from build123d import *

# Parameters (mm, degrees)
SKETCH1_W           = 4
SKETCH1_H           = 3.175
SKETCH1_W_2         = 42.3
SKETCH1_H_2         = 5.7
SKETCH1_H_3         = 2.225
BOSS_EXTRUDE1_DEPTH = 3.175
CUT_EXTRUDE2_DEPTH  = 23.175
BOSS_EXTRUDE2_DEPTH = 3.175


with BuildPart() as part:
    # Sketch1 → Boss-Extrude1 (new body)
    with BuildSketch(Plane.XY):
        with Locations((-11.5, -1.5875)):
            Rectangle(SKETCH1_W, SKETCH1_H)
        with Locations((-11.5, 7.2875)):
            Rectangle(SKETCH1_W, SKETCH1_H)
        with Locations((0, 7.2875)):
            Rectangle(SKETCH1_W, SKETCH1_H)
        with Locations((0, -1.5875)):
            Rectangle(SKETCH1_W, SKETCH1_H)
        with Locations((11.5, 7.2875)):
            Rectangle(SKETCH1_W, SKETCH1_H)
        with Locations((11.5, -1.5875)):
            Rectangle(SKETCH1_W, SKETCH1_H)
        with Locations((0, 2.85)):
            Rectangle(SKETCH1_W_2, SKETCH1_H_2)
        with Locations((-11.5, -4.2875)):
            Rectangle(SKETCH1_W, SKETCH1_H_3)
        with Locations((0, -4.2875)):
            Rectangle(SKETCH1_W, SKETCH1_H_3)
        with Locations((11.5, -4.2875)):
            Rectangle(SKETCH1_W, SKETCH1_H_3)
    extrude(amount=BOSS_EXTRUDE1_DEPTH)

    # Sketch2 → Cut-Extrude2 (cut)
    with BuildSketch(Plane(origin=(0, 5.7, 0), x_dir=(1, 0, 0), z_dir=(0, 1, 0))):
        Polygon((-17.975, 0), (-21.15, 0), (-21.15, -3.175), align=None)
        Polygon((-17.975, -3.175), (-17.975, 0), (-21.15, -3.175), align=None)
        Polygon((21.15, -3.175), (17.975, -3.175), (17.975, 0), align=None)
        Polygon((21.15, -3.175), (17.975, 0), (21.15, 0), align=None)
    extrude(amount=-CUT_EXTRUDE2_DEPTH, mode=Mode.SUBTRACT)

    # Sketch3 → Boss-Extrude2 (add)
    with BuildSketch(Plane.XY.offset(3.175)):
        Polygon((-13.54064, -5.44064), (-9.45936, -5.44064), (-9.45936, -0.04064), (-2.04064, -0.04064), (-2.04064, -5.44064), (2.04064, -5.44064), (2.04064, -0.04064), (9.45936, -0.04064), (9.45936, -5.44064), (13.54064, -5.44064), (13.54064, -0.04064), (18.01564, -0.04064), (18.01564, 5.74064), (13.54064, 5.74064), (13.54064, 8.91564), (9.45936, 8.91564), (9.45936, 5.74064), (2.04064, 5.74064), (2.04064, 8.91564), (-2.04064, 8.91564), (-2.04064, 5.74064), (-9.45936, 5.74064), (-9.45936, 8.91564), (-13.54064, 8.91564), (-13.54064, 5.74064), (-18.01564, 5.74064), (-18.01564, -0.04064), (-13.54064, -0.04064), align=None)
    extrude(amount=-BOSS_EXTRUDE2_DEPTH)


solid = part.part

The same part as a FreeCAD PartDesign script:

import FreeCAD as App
import Part
import Sketcher

V = App.Vector

doc = App.newDocument("Part")
body = doc.addObject("PartDesign::Body", "Body")

# Sketch on XY plane
sketch1 = doc.addObject("Sketcher::SketchObject", "Sketch")
body.addObject(sketch1)
sketch1.AttachmentSupport = (doc.XY_Plane, [""])
sketch1.MapMode = "FlatFace"
sketch1.addGeometry([
    Part.LineSegment(V(-13.5, 0, 0), V(-13.5, -5.4, 0)),  # 0
    Part.LineSegment(V(-13.5, -5.4, 0), V(-9.5, -5.4, 0)),  # 1
    Part.LineSegment(V(-9.5, -5.4, 0), V(-9.5, 0, 0)),  # 2
    Part.LineSegment(V(-9.5, 0, 0), V(-2, 0, 0)),  # 3
    Part.LineSegment(V(-2, 0, 0), V(-2, -5.4, 0)),  # 4
    Part.LineSegment(V(-2, -5.4, 0), V(2, -5.4, 0)),  # 5
    Part.LineSegment(V(2, -5.4, 0), V(2, 0, 0)),  # 6
    Part.LineSegment(V(2, 0, 0), V(9.5, 0, 0)),  # 7
    Part.LineSegment(V(9.5, 0, 0), V(9.5, -5.4, 0)),  # 8
    Part.LineSegment(V(9.5, -5.4, 0), V(13.5, -5.4, 0)),  # 9
    Part.LineSegment(V(13.5, -5.4, 0), V(13.5, 0, 0)),  # 10
    Part.LineSegment(V(13.5, 0, 0), V(21.1, 0, 0)),  # 11
    Part.LineSegment(V(21.1, 0, 0), V(21.1, 5.7, 0)),  # 12
    Part.LineSegment(V(21.1, 5.7, 0), V(13.5, 5.7, 0)),  # 13
    Part.LineSegment(V(13.5, 5.7, 0), V(13.5, 8.9, 0)),  # 14
    Part.LineSegment(V(13.5, 8.9, 0), V(9.5, 8.9, 0)),  # 15
    Part.LineSegment(V(9.5, 8.9, 0), V(9.5, 5.7, 0)),  # 16
    Part.LineSegment(V(9.5, 5.7, 0), V(2, 5.7, 0)),  # 17
    Part.LineSegment(V(2, 5.7, 0), V(2, 8.9, 0)),  # 18
    Part.LineSegment(V(2, 8.9, 0), V(-2, 8.9, 0)),  # 19
    Part.LineSegment(V(-2, 8.9, 0), V(-2, 5.7, 0)),  # 20
    Part.LineSegment(V(-2, 5.7, 0), V(-9.5, 5.7, 0)),  # 21
    Part.LineSegment(V(-9.5, 5.7, 0), V(-9.5, 8.9, 0)),  # 22
    Part.LineSegment(V(-9.5, 8.9, 0), V(-13.5, 8.9, 0)),  # 23
    Part.LineSegment(V(-13.5, 8.9, 0), V(-13.5, 5.7, 0)),  # 24
    Part.LineSegment(V(-13.5, 5.7, 0), V(-21.1, 5.7, 0)),  # 25
    Part.LineSegment(V(-21.1, 5.7, 0), V(-21.1, 0, 0)),  # 26
    Part.LineSegment(V(-21.1, 0, 0), V(-13.5, 0, 0)),  # 27
], False)
sketch1.addConstraint([
    Sketcher.Constraint("Coincident", 0, 2, 1, 1),
    Sketcher.Constraint("Coincident", 1, 2, 2, 1),
    Sketcher.Constraint("Coincident", 2, 2, 3, 1),
    Sketcher.Constraint("Coincident", 3, 2, 4, 1),
    Sketcher.Constraint("Coincident", 4, 2, 5, 1),
    Sketcher.Constraint("Coincident", 5, 2, 6, 1),
    Sketcher.Constraint("Coincident", 6, 2, 7, 1),
    Sketcher.Constraint("Coincident", 7, 2, 8, 1),
    Sketcher.Constraint("Coincident", 8, 2, 9, 1),
    Sketcher.Constraint("Coincident", 9, 2, 10, 1),
    Sketcher.Constraint("Coincident", 10, 2, 11, 1),
    Sketcher.Constraint("Coincident", 11, 2, 12, 1),
    Sketcher.Constraint("Coincident", 12, 2, 13, 1),
    Sketcher.Constraint("Coincident", 13, 2, 14, 1),
    Sketcher.Constraint("Coincident", 14, 2, 15, 1),
    Sketcher.Constraint("Coincident", 15, 2, 16, 1),
    Sketcher.Constraint("Coincident", 16, 2, 17, 1),
    Sketcher.Constraint("Coincident", 17, 2, 18, 1),
    Sketcher.Constraint("Coincident", 18, 2, 19, 1),
    Sketcher.Constraint("Coincident", 19, 2, 20, 1),
    Sketcher.Constraint("Coincident", 20, 2, 21, 1),
    Sketcher.Constraint("Coincident", 21, 2, 22, 1),
    Sketcher.Constraint("Coincident", 22, 2, 23, 1),
    Sketcher.Constraint("Coincident", 23, 2, 24, 1),
    Sketcher.Constraint("Coincident", 24, 2, 25, 1),
    Sketcher.Constraint("Coincident", 25, 2, 26, 1),
    Sketcher.Constraint("Coincident", 26, 2, 27, 1),
    Sketcher.Constraint("Coincident", 27, 2, 0, 1),
    Sketcher.Constraint("Vertical", 0),
    Sketcher.Constraint("Horizontal", 1),
    Sketcher.Constraint("Vertical", 2),
    Sketcher.Constraint("Horizontal", 3),
    Sketcher.Constraint("Vertical", 4),
    Sketcher.Constraint("Horizontal", 5),
    Sketcher.Constraint("Vertical", 6),
    Sketcher.Constraint("Horizontal", 7),
    Sketcher.Constraint("Vertical", 8),
    Sketcher.Constraint("Horizontal", 9),
    Sketcher.Constraint("Vertical", 10),
    Sketcher.Constraint("Horizontal", 11),
    Sketcher.Constraint("Vertical", 12),
    Sketcher.Constraint("Horizontal", 13),
    Sketcher.Constraint("Vertical", 14),
    Sketcher.Constraint("Horizontal", 15),
    Sketcher.Constraint("Vertical", 16),
    Sketcher.Constraint("Horizontal", 17),
    Sketcher.Constraint("Vertical", 18),
    Sketcher.Constraint("Horizontal", 19),
    Sketcher.Constraint("Vertical", 20),
    Sketcher.Constraint("Horizontal", 21),
    Sketcher.Constraint("Vertical", 22),
    Sketcher.Constraint("Horizontal", 23),
    Sketcher.Constraint("Vertical", 24),
    Sketcher.Constraint("Horizontal", 25),
    Sketcher.Constraint("Vertical", 26),
    Sketcher.Constraint("Horizontal", 27),
    Sketcher.Constraint("Symmetric", 3, 2, 6, 2, -1, 1),
    Sketcher.Constraint("Symmetric", 11, 2, 26, 2, -1, 1),
    Sketcher.Constraint("Symmetric", 2, 2, 7, 2, -2),
    Sketcher.Constraint("Symmetric", 0, 2, 9, 2, -2),
    Sketcher.Constraint("Symmetric", 17, 2, 20, 2, -2),
    Sketcher.Constraint("Symmetric", 15, 2, 22, 2, -2),
    Sketcher.Constraint("Symmetric", 13, 2, 24, 2, -2),
    Sketcher.Constraint("PointOnObject", 10, 2, -1),
    Sketcher.Constraint("Horizontal", 1, 2, 4, 2),
    Sketcher.Constraint("Horizontal", 13, 2, 16, 2),
    Sketcher.Constraint("Horizontal", 15, 2, 18, 2),
    Sketcher.Constraint("Vertical", 10, 2, 13, 2),
    Sketcher.Constraint("Vertical", 8, 2, 15, 2),
    Sketcher.Constraint("Vertical", 6, 2, 17, 2),
    Sketcher.Constraint("Equal", 1, 5),
    Sketcher.Constraint("DistanceX", 1, 1, 1, 2, 4.0),
    Sketcher.Constraint("DistanceX", 3, 1, 3, 2, 7.5),
    Sketcher.Constraint("DistanceY", 0, 2, 0, 1, 5.4),
    Sketcher.Constraint("DistanceY", 12, 1, 12, 2, 5.7),
    Sketcher.Constraint("DistanceX", 11, 1, 11, 2, 7.65),
    Sketcher.Constraint("DistanceY", 14, 1, 14, 2, 3.175),
])
pad1 = doc.addObject("PartDesign::Pad", "Pad")
body.addObject(pad1)
pad1.Profile = sketch1
pad1.Length = 3.175

# Sketch on XZ plane
sketch2 = doc.addObject("Sketcher::SketchObject", "Sketch001")
body.addObject(sketch2)
sketch2.AttachmentSupport = (doc.XZ_Plane, [""])
sketch2.MapMode = "FlatFace"
sketch2.AttachmentOffset = App.Placement(V(0, 0, -5.7), App.Rotation())
sketch2.addGeometry([
    Part.LineSegment(V(-18, 0, 0), V(-21.1, 0, 0)),  # 0
    Part.LineSegment(V(-21.1, 0, 0), V(-21.1, 3.2, 0)),  # 1
    Part.LineSegment(V(-21.1, 3.2, 0), V(-18, 3.2, 0)),  # 2
    Part.LineSegment(V(-18, 3.2, 0), V(-18, 0, 0)),  # 3
    Part.LineSegment(V(18, 3.2, 0), V(21.1, 3.2, 0)),  # 4
    Part.LineSegment(V(21.1, 3.2, 0), V(21.1, 0, 0)),  # 5
    Part.LineSegment(V(21.1, 0, 0), V(18, 0, 0)),  # 6
    Part.LineSegment(V(18, 0, 0), V(18, 3.2, 0)),  # 7
], False)
sketch2.addConstraint([
    Sketcher.Constraint("Coincident", 0, 2, 1, 1),
    Sketcher.Constraint("Coincident", 1, 2, 2, 1),
    Sketcher.Constraint("Coincident", 2, 2, 3, 1),
    Sketcher.Constraint("Coincident", 3, 2, 0, 1),
    Sketcher.Constraint("Coincident", 4, 2, 5, 1),
    Sketcher.Constraint("Coincident", 5, 2, 6, 1),
    Sketcher.Constraint("Coincident", 6, 2, 7, 1),
    Sketcher.Constraint("Coincident", 7, 2, 4, 1),
    Sketcher.Constraint("Horizontal", 0),
    Sketcher.Constraint("Vertical", 1),
    Sketcher.Constraint("Horizontal", 2),
    Sketcher.Constraint("Vertical", 3),
    Sketcher.Constraint("Horizontal", 4),
    Sketcher.Constraint("Vertical", 5),
    Sketcher.Constraint("Horizontal", 6),
    Sketcher.Constraint("Vertical", 7),
    Sketcher.Constraint("Symmetric", 0, 2, 5, 2, -1, 1),
    Sketcher.Constraint("Symmetric", 3, 2, 6, 2, -2),
    Sketcher.Constraint("Horizontal", 2, 2, 4, 2),
    Sketcher.Constraint("Equal", 6, 1),
    Sketcher.Constraint("DistanceX", 1, 2, 4, 2, 42.3),
    Sketcher.Constraint("DistanceX", 0, 2, 0, 1, 3.175),
])
pocket1 = doc.addObject("PartDesign::Pocket", "Pocket")
body.addObject(pocket1)
pocket1.Profile = sketch2
pocket1.Length = 23.175
pocket1.Reversed = True

# Sketch on XY plane
sketch3 = doc.addObject("Sketcher::SketchObject", "Sketch002")
body.addObject(sketch3)
sketch3.AttachmentSupport = (doc.XY_Plane, [""])
sketch3.MapMode = "FlatFace"
sketch3.AttachmentOffset = App.Placement(V(0, 0, 3.175), App.Rotation())
sketch3.addGeometry([
    Part.LineSegment(V(-13.5, -5.4, 0), V(-9.5, -5.4, 0)),  # 0
    Part.LineSegment(V(-9.5, -5.4, 0), V(-9.5, 0, 0)),  # 1
    Part.LineSegment(V(-9.5, 0, 0), V(-2, 0, 0)),  # 2
    Part.LineSegment(V(-2, 0, 0), V(-2, -5.4, 0)),  # 3
    Part.LineSegment(V(-2, -5.4, 0), V(2, -5.4, 0)),  # 4
    Part.LineSegment(V(2, -5.4, 0), V(2, 0, 0)),  # 5
    Part.LineSegment(V(2, 0, 0), V(9.5, 0, 0)),  # 6
    Part.LineSegment(V(9.5, 0, 0), V(9.5, -5.4, 0)),  # 7
    Part.LineSegment(V(9.5, -5.4, 0), V(13.5, -5.4, 0)),  # 8
    Part.LineSegment(V(13.5, -5.4, 0), V(13.5, 0, 0)),  # 9
    Part.LineSegment(V(13.5, 0, 0), V(18, 0, 0)),  # 10
    Part.LineSegment(V(18, 0, 0), V(18, 5.7, 0)),  # 11
    Part.LineSegment(V(18, 5.7, 0), V(13.5, 5.7, 0)),  # 12
    Part.LineSegment(V(13.5, 5.7, 0), V(13.5, 8.9, 0)),  # 13
    Part.LineSegment(V(13.5, 8.9, 0), V(9.5, 8.9, 0)),  # 14
    Part.LineSegment(V(9.5, 8.9, 0), V(9.5, 5.7, 0)),  # 15
    Part.LineSegment(V(9.5, 5.7, 0), V(2, 5.7, 0)),  # 16
    Part.LineSegment(V(2, 5.7, 0), V(2, 8.9, 0)),  # 17
    Part.LineSegment(V(2, 8.9, 0), V(-2, 8.9, 0)),  # 18
    Part.LineSegment(V(-2, 8.9, 0), V(-2, 5.7, 0)),  # 19
    Part.LineSegment(V(-2, 5.7, 0), V(-9.5, 5.7, 0)),  # 20
    Part.LineSegment(V(-9.5, 5.7, 0), V(-9.5, 8.9, 0)),  # 21
    Part.LineSegment(V(-9.5, 8.9, 0), V(-13.5, 8.9, 0)),  # 22
    Part.LineSegment(V(-13.5, 8.9, 0), V(-13.5, 5.7, 0)),  # 23
    Part.LineSegment(V(-13.5, 5.7, 0), V(-18, 5.7, 0)),  # 24
    Part.LineSegment(V(-18, 5.7, 0), V(-18, 0, 0)),  # 25
    Part.LineSegment(V(-18, 0, 0), V(-13.5, 0, 0)),  # 26
    Part.LineSegment(V(-13.5, 0, 0), V(-13.5, -5.4, 0)),  # 27
], False)
sketch3.addConstraint([
    Sketcher.Constraint("Coincident", 0, 2, 1, 1),
    Sketcher.Constraint("Coincident", 1, 2, 2, 1),
    Sketcher.Constraint("Coincident", 2, 2, 3, 1),
    Sketcher.Constraint("Coincident", 3, 2, 4, 1),
    Sketcher.Constraint("Coincident", 4, 2, 5, 1),
    Sketcher.Constraint("Coincident", 5, 2, 6, 1),
    Sketcher.Constraint("Coincident", 6, 2, 7, 1),
    Sketcher.Constraint("Coincident", 7, 2, 8, 1),
    Sketcher.Constraint("Coincident", 8, 2, 9, 1),
    Sketcher.Constraint("Coincident", 9, 2, 10, 1),
    Sketcher.Constraint("Coincident", 10, 2, 11, 1),
    Sketcher.Constraint("Coincident", 11, 2, 12, 1),
    Sketcher.Constraint("Coincident", 12, 2, 13, 1),
    Sketcher.Constraint("Coincident", 13, 2, 14, 1),
    Sketcher.Constraint("Coincident", 14, 2, 15, 1),
    Sketcher.Constraint("Coincident", 15, 2, 16, 1),
    Sketcher.Constraint("Coincident", 16, 2, 17, 1),
    Sketcher.Constraint("Coincident", 17, 2, 18, 1),
    Sketcher.Constraint("Coincident", 18, 2, 19, 1),
    Sketcher.Constraint("Coincident", 19, 2, 20, 1),
    Sketcher.Constraint("Coincident", 20, 2, 21, 1),
    Sketcher.Constraint("Coincident", 21, 2, 22, 1),
    Sketcher.Constraint("Coincident", 22, 2, 23, 1),
    Sketcher.Constraint("Coincident", 23, 2, 24, 1),
    Sketcher.Constraint("Coincident", 24, 2, 25, 1),
    Sketcher.Constraint("Coincident", 25, 2, 26, 1),
    Sketcher.Constraint("Coincident", 26, 2, 27, 1),
    Sketcher.Constraint("Coincident", 27, 2, 0, 1),
    Sketcher.Constraint("Horizontal", 0),
    Sketcher.Constraint("Vertical", 1),
    Sketcher.Constraint("Horizontal", 2),
    Sketcher.Constraint("Vertical", 3),
    Sketcher.Constraint("Horizontal", 4),
    Sketcher.Constraint("Vertical", 5),
    Sketcher.Constraint("Horizontal", 6),
    Sketcher.Constraint("Vertical", 7),
    Sketcher.Constraint("Horizontal", 8),
    Sketcher.Constraint("Vertical", 9),
    Sketcher.Constraint("Horizontal", 10),
    Sketcher.Constraint("Vertical", 11),
    Sketcher.Constraint("Horizontal", 12),
    Sketcher.Constraint("Vertical", 13),
    Sketcher.Constraint("Horizontal", 14),
    Sketcher.Constraint("Vertical", 15),
    Sketcher.Constraint("Horizontal", 16),
    Sketcher.Constraint("Vertical", 17),
    Sketcher.Constraint("Horizontal", 18),
    Sketcher.Constraint("Vertical", 19),
    Sketcher.Constraint("Horizontal", 20),
    Sketcher.Constraint("Vertical", 21),
    Sketcher.Constraint("Horizontal", 22),
    Sketcher.Constraint("Vertical", 23),
    Sketcher.Constraint("Horizontal", 24),
    Sketcher.Constraint("Vertical", 25),
    Sketcher.Constraint("Horizontal", 26),
    Sketcher.Constraint("Vertical", 27),
    Sketcher.Constraint("Symmetric", 2, 2, 5, 2, -2),
    Sketcher.Constraint("Symmetric", 0, 2, 7, 2, -2),
    Sketcher.Constraint("Symmetric", 16, 2, 19, 2, -2),
    Sketcher.Constraint("Symmetric", 14, 2, 21, 2, -2),
    Sketcher.Constraint("Symmetric", 12, 2, 23, 2, -2),
    Sketcher.Constraint("Symmetric", 10, 2, 25, 2, -2),
    Sketcher.Constraint("Horizontal", 0, 2, 3, 2),
    Sketcher.Constraint("Horizontal", 6, 2, 9, 2),
    Sketcher.Constraint("Horizontal", 12, 2, 15, 2),
    Sketcher.Constraint("Horizontal", 14, 2, 17, 2),
    Sketcher.Constraint("Vertical", 9, 2, 12, 2),
    Sketcher.Constraint("Vertical", 7, 2, 14, 2),
    Sketcher.Constraint("Vertical", 5, 2, 16, 2),
    Sketcher.Constraint("Vertical", 23, 2, 26, 2),
    Sketcher.Constraint("Equal", 0, 4),
    Sketcher.Constraint("DistanceY", 1, 1, 1, 2, 5.4),
    Sketcher.Constraint("DistanceX", 0, 2, 4, 2, 11.5),
    Sketcher.Constraint("DistanceX", 10, 1, 10, 2, 4.475),
    Sketcher.Constraint("DistanceY", 13, 1, 13, 2, 3.175),
    Sketcher.Constraint("DistanceX", 0, 1, 0, 2, 4.08128),
    Sketcher.Constraint("DistanceY", 11, 1, 11, 2, 5.78128),
    Sketcher.Constraint("DistanceY", 0, 2, -1, 1, 5.44064),
])
pad2 = doc.addObject("PartDesign::Pad", "Pad001")
body.addObject(pad2)
pad2.Profile = sketch3
pad2.Length = 3.175
pad2.Reversed = True

doc.recompute()
